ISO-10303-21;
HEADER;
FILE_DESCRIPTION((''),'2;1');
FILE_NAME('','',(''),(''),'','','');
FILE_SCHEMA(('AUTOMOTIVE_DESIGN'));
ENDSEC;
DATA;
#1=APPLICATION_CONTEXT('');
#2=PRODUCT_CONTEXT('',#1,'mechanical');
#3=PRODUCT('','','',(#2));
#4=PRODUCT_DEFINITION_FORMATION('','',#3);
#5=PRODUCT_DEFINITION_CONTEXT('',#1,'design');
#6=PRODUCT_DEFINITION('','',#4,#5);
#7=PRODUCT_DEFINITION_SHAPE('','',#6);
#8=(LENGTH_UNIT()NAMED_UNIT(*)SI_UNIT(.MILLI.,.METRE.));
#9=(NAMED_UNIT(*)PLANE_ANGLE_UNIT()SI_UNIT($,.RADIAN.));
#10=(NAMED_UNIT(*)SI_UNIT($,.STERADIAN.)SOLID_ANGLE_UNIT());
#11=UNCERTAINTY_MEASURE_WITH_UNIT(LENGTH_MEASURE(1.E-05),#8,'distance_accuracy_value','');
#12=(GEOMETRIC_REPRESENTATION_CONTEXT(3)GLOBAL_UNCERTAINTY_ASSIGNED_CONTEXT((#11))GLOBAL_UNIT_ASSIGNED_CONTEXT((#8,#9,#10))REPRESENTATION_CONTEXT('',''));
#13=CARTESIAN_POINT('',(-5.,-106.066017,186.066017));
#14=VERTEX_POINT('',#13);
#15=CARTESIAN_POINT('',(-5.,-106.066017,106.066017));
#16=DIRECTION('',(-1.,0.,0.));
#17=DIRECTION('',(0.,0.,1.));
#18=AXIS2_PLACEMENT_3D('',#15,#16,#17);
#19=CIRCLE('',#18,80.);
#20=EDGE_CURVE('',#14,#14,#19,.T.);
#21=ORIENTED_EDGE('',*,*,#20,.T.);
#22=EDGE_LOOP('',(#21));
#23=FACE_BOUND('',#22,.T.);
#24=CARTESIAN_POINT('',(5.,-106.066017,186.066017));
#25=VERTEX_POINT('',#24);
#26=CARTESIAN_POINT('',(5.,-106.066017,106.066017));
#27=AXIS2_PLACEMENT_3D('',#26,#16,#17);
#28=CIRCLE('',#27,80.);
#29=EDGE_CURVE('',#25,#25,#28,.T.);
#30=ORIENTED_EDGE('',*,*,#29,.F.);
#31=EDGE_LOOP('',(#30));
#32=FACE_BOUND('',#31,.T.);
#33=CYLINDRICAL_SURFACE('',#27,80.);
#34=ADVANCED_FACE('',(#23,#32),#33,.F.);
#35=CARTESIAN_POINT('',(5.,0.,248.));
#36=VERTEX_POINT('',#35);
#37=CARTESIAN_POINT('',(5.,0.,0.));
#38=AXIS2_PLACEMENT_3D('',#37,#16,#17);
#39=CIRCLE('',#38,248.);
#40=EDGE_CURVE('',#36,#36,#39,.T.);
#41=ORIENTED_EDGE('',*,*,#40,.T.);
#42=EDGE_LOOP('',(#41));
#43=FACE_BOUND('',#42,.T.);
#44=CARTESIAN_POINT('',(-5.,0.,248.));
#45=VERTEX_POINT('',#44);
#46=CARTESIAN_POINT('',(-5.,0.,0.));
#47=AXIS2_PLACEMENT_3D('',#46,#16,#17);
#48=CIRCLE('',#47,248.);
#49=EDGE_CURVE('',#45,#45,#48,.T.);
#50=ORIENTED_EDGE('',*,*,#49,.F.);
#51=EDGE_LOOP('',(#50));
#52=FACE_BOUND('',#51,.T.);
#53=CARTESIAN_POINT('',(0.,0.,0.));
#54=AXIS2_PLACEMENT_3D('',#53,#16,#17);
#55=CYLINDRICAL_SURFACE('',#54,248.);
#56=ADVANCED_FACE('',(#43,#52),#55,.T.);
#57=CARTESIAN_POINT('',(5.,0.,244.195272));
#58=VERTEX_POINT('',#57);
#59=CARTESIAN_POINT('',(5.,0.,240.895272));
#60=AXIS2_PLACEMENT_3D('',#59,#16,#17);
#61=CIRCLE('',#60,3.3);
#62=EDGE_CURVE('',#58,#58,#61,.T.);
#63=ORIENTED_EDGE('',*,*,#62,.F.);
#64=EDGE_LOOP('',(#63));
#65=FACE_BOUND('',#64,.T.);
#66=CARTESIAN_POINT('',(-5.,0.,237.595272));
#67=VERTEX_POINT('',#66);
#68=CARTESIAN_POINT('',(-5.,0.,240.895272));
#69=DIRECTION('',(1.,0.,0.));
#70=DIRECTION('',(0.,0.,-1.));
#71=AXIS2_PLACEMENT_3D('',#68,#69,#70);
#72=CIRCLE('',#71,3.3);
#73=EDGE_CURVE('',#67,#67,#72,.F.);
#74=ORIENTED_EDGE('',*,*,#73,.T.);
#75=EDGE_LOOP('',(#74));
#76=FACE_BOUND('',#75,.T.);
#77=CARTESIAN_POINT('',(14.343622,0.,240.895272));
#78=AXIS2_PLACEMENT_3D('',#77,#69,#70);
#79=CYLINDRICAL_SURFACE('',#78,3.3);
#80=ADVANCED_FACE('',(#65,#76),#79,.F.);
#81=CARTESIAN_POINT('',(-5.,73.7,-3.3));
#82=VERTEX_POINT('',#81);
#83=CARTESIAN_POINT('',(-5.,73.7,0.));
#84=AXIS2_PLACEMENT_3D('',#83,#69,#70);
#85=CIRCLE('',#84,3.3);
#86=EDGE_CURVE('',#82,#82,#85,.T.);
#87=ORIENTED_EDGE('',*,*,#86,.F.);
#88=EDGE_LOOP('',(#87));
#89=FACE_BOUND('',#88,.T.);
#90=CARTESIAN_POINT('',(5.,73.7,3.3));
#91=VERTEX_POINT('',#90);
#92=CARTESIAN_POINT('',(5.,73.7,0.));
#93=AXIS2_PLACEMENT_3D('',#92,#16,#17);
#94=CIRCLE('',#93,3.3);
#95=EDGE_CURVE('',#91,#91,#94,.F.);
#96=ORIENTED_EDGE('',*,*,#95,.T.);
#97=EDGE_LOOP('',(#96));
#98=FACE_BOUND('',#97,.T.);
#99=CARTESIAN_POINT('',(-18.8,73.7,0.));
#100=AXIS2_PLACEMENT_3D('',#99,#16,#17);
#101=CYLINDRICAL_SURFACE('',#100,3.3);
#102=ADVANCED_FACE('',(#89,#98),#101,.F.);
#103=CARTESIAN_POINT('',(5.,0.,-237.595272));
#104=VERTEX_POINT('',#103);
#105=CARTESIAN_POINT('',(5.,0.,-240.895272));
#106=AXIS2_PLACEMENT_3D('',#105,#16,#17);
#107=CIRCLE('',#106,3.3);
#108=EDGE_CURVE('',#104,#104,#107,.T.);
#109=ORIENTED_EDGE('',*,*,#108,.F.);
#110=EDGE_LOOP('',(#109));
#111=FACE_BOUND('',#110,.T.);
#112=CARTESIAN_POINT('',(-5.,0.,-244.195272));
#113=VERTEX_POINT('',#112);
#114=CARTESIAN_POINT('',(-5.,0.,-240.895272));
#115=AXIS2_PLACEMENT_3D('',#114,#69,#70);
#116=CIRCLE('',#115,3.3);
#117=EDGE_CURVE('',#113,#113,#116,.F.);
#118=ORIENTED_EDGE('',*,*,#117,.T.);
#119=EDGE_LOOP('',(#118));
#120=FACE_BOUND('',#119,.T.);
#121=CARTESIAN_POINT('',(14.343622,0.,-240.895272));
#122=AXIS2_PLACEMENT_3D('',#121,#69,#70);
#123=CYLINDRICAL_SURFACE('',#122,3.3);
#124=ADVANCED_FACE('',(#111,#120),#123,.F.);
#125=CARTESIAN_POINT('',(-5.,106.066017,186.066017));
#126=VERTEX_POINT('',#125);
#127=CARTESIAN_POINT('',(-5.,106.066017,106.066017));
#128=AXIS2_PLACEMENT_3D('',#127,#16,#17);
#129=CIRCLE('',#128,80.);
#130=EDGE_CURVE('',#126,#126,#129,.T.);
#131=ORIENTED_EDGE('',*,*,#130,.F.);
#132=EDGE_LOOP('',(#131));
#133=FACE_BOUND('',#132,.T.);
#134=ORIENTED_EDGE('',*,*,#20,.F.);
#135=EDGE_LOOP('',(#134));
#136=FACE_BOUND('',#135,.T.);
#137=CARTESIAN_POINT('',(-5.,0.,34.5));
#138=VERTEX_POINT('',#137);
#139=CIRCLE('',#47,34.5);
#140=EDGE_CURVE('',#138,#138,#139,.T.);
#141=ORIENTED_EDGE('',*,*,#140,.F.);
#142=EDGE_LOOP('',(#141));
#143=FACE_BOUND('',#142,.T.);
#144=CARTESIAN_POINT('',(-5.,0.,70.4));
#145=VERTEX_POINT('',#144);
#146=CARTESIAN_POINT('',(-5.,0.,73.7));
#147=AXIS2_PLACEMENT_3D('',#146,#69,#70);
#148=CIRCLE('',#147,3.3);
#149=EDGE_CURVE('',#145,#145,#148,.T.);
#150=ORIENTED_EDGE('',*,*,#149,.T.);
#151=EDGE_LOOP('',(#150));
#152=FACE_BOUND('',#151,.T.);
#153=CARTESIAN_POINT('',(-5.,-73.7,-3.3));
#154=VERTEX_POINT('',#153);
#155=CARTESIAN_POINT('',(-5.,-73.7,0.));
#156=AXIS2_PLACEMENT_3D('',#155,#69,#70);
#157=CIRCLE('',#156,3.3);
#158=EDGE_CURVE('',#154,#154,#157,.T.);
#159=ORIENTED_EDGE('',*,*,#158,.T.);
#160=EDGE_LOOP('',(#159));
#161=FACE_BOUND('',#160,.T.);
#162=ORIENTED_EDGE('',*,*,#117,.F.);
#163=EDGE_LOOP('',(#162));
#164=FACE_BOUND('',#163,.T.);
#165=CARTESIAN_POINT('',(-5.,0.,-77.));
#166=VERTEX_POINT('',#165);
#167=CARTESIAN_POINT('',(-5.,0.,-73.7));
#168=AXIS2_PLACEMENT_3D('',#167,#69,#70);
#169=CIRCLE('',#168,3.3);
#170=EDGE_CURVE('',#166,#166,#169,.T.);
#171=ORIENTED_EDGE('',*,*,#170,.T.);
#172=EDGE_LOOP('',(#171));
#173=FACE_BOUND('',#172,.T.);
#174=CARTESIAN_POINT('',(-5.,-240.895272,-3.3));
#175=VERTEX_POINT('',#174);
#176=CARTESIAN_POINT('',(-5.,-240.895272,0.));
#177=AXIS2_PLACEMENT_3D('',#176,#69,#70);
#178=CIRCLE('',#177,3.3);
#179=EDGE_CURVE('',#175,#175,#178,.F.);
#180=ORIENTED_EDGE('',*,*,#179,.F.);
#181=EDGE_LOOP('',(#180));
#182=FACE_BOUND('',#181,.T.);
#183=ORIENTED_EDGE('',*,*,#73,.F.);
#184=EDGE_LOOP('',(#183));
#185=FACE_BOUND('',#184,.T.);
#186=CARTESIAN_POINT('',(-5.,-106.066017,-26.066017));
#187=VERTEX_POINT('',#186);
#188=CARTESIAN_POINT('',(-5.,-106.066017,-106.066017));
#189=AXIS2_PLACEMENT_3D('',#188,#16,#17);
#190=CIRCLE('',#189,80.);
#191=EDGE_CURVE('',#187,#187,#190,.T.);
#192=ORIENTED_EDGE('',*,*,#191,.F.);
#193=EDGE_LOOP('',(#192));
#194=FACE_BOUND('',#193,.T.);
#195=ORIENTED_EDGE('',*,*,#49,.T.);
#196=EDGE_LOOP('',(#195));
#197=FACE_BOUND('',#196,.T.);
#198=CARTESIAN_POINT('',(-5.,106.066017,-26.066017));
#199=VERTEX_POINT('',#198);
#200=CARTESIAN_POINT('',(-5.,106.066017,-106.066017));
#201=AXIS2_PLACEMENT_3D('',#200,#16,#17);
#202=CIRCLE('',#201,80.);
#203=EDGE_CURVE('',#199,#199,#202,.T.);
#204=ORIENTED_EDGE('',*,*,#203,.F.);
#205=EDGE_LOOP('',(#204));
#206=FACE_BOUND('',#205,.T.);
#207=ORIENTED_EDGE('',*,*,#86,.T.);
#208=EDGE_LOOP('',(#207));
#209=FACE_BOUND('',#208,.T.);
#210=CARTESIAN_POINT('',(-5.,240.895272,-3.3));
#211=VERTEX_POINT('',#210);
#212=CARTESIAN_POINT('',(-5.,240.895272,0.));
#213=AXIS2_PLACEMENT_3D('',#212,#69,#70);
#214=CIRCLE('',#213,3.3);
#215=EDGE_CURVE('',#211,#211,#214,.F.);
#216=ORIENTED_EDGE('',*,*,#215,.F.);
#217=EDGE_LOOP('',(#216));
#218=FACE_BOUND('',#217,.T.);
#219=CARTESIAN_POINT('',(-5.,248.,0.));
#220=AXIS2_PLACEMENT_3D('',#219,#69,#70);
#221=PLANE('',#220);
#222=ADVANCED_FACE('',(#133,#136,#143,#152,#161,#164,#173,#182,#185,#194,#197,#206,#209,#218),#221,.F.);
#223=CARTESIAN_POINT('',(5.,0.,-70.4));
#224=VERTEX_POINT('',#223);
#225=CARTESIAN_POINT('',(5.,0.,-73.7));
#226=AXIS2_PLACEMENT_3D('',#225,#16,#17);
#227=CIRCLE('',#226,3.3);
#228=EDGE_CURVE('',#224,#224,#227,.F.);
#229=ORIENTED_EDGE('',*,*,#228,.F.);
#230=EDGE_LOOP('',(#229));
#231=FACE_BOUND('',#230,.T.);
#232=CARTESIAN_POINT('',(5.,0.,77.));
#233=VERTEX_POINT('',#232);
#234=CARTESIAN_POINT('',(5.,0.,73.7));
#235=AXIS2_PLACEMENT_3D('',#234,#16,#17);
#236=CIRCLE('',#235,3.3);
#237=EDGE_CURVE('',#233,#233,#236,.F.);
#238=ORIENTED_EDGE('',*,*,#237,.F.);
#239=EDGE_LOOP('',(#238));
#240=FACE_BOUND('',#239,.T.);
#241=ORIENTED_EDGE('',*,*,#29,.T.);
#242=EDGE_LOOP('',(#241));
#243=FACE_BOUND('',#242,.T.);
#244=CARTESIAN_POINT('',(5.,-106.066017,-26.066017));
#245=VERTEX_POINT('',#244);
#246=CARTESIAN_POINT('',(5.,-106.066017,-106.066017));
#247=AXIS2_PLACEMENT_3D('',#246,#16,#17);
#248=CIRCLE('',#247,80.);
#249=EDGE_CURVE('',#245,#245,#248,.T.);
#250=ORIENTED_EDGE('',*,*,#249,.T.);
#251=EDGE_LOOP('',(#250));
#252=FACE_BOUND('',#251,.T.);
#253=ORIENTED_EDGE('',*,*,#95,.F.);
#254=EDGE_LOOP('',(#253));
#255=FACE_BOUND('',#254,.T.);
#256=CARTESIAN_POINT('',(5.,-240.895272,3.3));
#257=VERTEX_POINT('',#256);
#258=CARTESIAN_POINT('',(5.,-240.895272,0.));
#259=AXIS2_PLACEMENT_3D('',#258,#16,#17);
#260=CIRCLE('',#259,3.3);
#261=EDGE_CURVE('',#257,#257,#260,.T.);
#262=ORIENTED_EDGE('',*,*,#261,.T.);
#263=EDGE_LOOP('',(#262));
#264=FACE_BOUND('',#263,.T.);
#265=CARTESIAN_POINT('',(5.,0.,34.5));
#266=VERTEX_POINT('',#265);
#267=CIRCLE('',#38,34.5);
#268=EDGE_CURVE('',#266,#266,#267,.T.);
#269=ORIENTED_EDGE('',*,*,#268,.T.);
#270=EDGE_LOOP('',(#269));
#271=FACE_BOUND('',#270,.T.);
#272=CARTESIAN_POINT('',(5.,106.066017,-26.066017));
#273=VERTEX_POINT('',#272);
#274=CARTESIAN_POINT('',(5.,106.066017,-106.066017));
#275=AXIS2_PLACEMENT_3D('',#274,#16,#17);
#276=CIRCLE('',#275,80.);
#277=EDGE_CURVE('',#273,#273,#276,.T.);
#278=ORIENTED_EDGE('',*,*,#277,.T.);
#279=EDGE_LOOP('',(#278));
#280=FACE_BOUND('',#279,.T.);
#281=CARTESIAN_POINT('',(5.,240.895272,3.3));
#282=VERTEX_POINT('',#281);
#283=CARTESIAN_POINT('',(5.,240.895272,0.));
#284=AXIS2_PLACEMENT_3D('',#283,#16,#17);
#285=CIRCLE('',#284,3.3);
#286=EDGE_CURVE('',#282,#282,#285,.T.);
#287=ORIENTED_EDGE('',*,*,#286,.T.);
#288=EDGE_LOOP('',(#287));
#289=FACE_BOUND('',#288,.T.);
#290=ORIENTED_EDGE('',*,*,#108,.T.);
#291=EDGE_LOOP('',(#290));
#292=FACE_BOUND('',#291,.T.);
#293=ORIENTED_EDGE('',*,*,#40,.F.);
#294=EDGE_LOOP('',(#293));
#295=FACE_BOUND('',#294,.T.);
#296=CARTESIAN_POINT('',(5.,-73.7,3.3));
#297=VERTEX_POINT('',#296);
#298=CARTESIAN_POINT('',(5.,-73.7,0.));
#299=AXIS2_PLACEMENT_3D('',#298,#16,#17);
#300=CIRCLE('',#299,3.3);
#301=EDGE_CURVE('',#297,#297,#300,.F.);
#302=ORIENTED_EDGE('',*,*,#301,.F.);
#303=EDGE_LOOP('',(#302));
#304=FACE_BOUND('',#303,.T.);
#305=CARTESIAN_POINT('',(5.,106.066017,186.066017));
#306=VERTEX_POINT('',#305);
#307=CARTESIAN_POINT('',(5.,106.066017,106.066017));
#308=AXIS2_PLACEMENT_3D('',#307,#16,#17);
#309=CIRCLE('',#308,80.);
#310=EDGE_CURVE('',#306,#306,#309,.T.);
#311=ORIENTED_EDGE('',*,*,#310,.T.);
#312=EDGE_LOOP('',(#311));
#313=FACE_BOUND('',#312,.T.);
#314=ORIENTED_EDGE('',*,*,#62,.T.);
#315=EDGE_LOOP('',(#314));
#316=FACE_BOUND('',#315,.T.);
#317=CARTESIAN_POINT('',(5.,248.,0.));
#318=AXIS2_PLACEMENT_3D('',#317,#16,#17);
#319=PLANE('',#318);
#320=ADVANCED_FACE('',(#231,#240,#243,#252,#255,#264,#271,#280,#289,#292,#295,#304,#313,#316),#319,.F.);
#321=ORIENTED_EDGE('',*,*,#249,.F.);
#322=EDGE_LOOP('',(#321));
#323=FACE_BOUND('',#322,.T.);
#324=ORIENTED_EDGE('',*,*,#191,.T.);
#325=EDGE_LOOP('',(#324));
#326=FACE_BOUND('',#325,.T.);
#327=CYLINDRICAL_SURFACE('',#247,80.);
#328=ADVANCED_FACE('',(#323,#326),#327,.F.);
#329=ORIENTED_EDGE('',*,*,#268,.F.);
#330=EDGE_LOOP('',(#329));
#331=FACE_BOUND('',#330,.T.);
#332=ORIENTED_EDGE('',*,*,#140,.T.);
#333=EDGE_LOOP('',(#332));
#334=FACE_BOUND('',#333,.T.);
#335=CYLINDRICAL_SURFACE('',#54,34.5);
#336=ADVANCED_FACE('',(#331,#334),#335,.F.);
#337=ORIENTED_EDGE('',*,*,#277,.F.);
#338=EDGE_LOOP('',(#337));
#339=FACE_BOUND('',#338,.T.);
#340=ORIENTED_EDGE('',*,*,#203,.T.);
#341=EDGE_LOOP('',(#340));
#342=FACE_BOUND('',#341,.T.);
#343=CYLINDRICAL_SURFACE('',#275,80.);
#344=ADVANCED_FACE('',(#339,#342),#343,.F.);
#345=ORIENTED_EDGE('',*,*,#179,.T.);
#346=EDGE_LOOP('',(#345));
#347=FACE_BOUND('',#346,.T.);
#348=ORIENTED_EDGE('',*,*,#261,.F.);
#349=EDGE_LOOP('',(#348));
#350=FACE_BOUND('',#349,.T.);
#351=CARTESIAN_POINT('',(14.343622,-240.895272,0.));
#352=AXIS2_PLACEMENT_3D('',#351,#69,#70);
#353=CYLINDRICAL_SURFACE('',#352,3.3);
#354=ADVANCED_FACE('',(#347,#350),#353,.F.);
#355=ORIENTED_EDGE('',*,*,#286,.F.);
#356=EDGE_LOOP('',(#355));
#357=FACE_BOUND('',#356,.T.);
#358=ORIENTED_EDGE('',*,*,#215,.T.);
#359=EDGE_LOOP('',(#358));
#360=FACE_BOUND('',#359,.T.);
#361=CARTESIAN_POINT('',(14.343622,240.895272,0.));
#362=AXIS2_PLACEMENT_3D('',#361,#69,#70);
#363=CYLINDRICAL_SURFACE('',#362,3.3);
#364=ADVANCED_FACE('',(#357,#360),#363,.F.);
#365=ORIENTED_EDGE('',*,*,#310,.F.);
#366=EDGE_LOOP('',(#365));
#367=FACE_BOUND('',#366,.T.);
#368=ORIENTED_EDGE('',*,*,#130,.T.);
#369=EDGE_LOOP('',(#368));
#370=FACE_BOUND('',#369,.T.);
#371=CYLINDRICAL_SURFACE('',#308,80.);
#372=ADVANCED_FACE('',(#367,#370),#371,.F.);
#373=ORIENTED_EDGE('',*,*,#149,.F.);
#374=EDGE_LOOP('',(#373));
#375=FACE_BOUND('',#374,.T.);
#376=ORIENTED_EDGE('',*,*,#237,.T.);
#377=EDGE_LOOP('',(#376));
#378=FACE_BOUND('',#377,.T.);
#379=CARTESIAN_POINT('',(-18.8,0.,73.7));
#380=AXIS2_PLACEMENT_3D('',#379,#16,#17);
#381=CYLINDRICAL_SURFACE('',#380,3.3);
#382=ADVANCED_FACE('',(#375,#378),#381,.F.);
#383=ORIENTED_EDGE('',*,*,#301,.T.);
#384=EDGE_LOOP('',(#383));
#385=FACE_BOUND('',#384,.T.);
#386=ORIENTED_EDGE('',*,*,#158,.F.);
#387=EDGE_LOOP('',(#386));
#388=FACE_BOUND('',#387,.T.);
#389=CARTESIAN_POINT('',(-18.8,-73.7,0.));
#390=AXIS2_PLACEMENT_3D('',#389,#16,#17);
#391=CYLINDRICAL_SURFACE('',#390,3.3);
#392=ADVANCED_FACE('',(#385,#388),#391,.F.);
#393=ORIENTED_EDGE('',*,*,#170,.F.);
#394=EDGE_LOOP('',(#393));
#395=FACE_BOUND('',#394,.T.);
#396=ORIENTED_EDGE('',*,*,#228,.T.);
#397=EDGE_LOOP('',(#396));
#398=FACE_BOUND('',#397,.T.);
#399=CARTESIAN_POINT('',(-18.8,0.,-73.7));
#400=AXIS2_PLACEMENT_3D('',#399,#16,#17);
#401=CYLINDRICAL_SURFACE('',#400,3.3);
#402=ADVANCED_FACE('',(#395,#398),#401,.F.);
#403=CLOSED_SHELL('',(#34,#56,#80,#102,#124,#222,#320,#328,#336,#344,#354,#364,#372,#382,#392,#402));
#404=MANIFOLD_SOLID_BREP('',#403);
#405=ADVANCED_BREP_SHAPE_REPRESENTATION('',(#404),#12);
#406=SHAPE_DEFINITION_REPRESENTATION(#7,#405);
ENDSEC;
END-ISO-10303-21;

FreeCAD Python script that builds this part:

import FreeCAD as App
import Part
import Sketcher

V = App.Vector
Q = App.Units.Quantity


def add_polygon(sketch, points):
    """Adds a closed chain of lines whose ends are joined by coincident constraints."""
    first, n = sketch.GeometryCount, len(points)
    for a, b in zip(points, points[1:] + points[:1]):
        sketch.addGeometry(Part.LineSegment(App.Vector(*a, 0), App.Vector(*b, 0)), False)
    for i in range(n):
        sketch.addConstraint(Sketcher.Constraint("Coincident", first + i, 2, first + (i + 1) % n, 1))

doc = App.newDocument("Part")
params = doc.addObject("Spreadsheet::Sheet", "Params")
for row, (alias, value) in enumerate([
    ("sketch1_width", "10 mm"),
    ("sketch1_height", "213.5 mm"),
    ("revolution_angle", "360 deg"),
    ("sketch2_diameter", "6.6 mm"),
    ("hole_diameter", "6.6 mm"),
    ("sketch3_diameter", "160 mm"),
    ("sketch4_diameter", "6.6 mm"),
    ("hole2_diameter", "6.6 mm"),
], start=1):
    params.set(f"A{row}", alias)
    params.set(f"B{row}", "=" + value)
    params.setAlias(f"B{row}", alias)

body = doc.addObject("PartDesign::Body", "Body")

# Sketch on XY plane
sketch1 = body.newObject("Sketcher::SketchObject", "Sketch")
sketch1.AttachmentSupport = (doc.getObject("XY_Plane"), [""])
sketch1.MapMode = "FlatFace"
add_polygon(sketch1, [(-5, 248), (-5, 34.5), (5, 34.5), (5, 248)])  # lines 0-3
sketch1.addConstraint(Sketcher.Constraint("Vertical", 0))
sketch1.addConstraint(Sketcher.Constraint("Horizontal", 1))
sketch1.addConstraint(Sketcher.Constraint("Vertical", 2))
sketch1.addConstraint(Sketcher.Constraint("Horizontal", 3))
sketch1.addConstraint(Sketcher.Constraint("DistanceX", 1, 1, 1, 2, Q("10 mm")))
sketch1.addConstraint(Sketcher.Constraint("DistanceY", 0, 2, 0, 1, Q("213.5 mm")))
sketch1.addConstraint(Sketcher.Constraint("DistanceX", 0, 2, -1, 1, Q("5 mm")))
sketch1.addConstraint(Sketcher.Constraint("DistanceY", -1, 1, 2, 2, Q("248 mm")))
sketch1.setExpression("Constraints[8]", "Params.sketch1_width")
sketch1.setExpression("Constraints[9]", "Params.sketch1_height")
revolution = body.newObject("PartDesign::Revolution", "Revolution")
revolution.Profile = sketch1
revolution.ReferenceAxis = (sketch1, ["H_Axis"])
revolution.setExpression("Angle", "Params.revolution_angle")

# Sketch on YZ plane
sketch2 = body.newObject("Sketcher::SketchObject", "Sketch001")
sketch2.AttachmentSupport = (doc.getObject("YZ_Plane"), [""])
sketch2.MapMode = "FlatFace"
sketch2.AttachmentOffset = App.Placement(V(0, 0, -18.8), App.Rotation())
sketch2.addGeometry(Part.Circle(V(73.7, 0, 0), V(0, 0, 1), 3.3), False)
sketch2.addGeometry(Part.Circle(V(0, 73.7, 0), V(0, 0, 1), 3.3), False)
sketch2.addGeometry(Part.Circle(V(-73.7, 0, 0), V(0, 0, 1), 3.3), False)
sketch2.addGeometry(Part.Circle(V(0, -73.7, 0), V(0, 0, 1), 3.3), False)
sketch2.addGeometry(Part.Circle(V(0, 0, 0), V(0, 0, 1), 3.3), False)
sketch2.addConstraint(Sketcher.Constraint("Coincident", 4, 3, -1, 1))
sketch2.addConstraint(Sketcher.Constraint("Equal", 0, 1))
sketch2.addConstraint(Sketcher.Constraint("Equal", 1, 2))
sketch2.addConstraint(Sketcher.Constraint("Equal", 2, 3))
sketch2.addConstraint(Sketcher.Constraint("Equal", 3, 4))
sketch2.addConstraint(Sketcher.Constraint("Symmetric", 0, 3, 2, 3, -1, 1))
sketch2.addConstraint(Sketcher.Constraint("Symmetric", 1, 3, 3, 3, -1, 1))
sketch2.addConstraint(Sketcher.Constraint("PointOnObject", 0, 3, -1))
sketch2.addConstraint(Sketcher.Constraint("PointOnObject", 1, 3, -2))
sketch2.addConstraint(Sketcher.Constraint("Diameter", 0, Q("6.6 mm")))
sketch2.addConstraint(Sketcher.Constraint("DistanceX", -1, 1, 0, 3, Q("73.7 mm")))
sketch2.addConstraint(Sketcher.Constraint("DistanceY", -1, 1, 1, 3, Q("73.7 mm")))
sketch2.setExpression("Constraints[9]", "Params.sketch2_diameter")
doc.recompute()
hole = body.newObject("PartDesign::Hole", "Hole")
hole.Profile = sketch2
hole.ThreadType = "None"
hole.setExpression("Diameter", "Params.hole_diameter")
hole.DepthType = "ThroughAll"
hole.Reversed = True

# Sketch on YZ plane
sketch3 = body.newObject("Sketcher::SketchObject", "Sketch002")
sketch3.AttachmentSupport = (doc.getObject("YZ_Plane"), [""])
sketch3.MapMode = "FlatFace"
sketch3.AttachmentOffset = App.Placement(V(0, 0, -5), App.Rotation())
sketch3.addGeometry(Part.Circle(V(106.066017, 106.066017, 0), V(0, 0, 1), 80), False)
sketch3.addGeometry(Part.Circle(V(-106.066017, 106.066017, 0), V(0, 0, 1), 80), False)
sketch3.addGeometry(Part.Circle(V(-106.066017, -106.066017, 0), V(0, 0, 1), 80), False)
sketch3.addGeometry(Part.Circle(V(106.066017, -106.066017, 0), V(0, 0, 1), 80), False)
sketch3.addConstraint(Sketcher.Constraint("Equal", 0, 1))
sketch3.addConstraint(Sketcher.Constraint("Equal", 1, 2))
sketch3.addConstraint(Sketcher.Constraint("Equal", 2, 3))
sketch3.addConstraint(Sketcher.Constraint("Symmetric", 0, 3, 2, 3, -1, 1))
sketch3.addConstraint(Sketcher.Constraint("Symmetric", 1, 3, 3, 3, -1, 1))
sketch3.addConstraint(Sketcher.Constraint("Symmetric", 0, 3, 1, 3, -2))
sketch3.addConstraint(Sketcher.Constraint("Diameter", 0, Q("160 mm")))
sketch3.addConstraint(Sketcher.Constraint("DistanceX", -1, 1, 0, 3, Q("106.066017 mm")))
sketch3.addConstraint(Sketcher.Constraint("DistanceY", -1, 1, 0, 3, Q("106.066017 mm")))
sketch3.setExpression("Constraints[6]", "Params.sketch3_diameter")
pocket1 = body.newObject("PartDesign::Pocket", "Pocket")
pocket1.Profile = sketch3
pocket1.Type = "ThroughAll"
pocket1.Reversed = True

# Sketch on YZ plane
sketch4 = body.newObject("Sketcher::SketchObject", "Sketch003")
sketch4.AttachmentSupport = (doc.getObject("YZ_Plane"), [""])
sketch4.MapMode = "FlatFace"
sketch4.AttachmentOffset = App.Placement(V(0, 0, 14.343622), App.Rotation())
sketch4.addGeometry(Part.Circle(V(240.895272, 0, 0), V(0, 0, 1), 3.3), False)
sketch4.addGeometry(Part.Circle(V(0, -240.895272, 0), V(0, 0, 1), 3.3), False)
sketch4.addGeometry(Part.Circle(V(-240.895272, 0, 0), V(0, 0, 1), 3.3), False)
sketch4.addGeometry(Part.Circle(V(0, 240.895272, 0), V(0, 0, 1), 3.3), False)
sketch4.addGeometry(Part.Circle(V(0, 0, 0), V(0, 0, 1), 3.3), False)
sketch4.addConstraint(Sketcher.Constraint("Coincident", 4, 3, -1, 1))
sketch4.addConstraint(Sketcher.Constraint("Equal", 0, 1))
sketch4.addConstraint(Sketcher.Constraint("Equal", 1, 2))
sketch4.addConstraint(Sketcher.Constraint("Equal", 2, 3))
sketch4.addConstraint(Sketcher.Constraint("Equal", 3, 4))
sketch4.addConstraint(Sketcher.Constraint("Symmetric", 0, 3, 2, 3, -1, 1))
sketch4.addConstraint(Sketcher.Constraint("Symmetric", 1, 3, 3, 3, -1, 1))
sketch4.addConstraint(Sketcher.Constraint("PointOnObject", 0, 3, -1))
sketch4.addConstraint(Sketcher.Constraint("PointOnObject", 1, 3, -2))
sketch4.addConstraint(Sketcher.Constraint("Diameter", 0, Q("6.6 mm")))
sketch4.addConstraint(Sketcher.Constraint("DistanceX", -1, 1, 0, 3, Q("240.895272 mm")))
sketch4.addConstraint(Sketcher.Constraint("DistanceY", 1, 3, -1, 1, Q("240.895272 mm")))
sketch4.setExpression("Constraints[9]", "Params.sketch4_diameter")
doc.recompute()
hole2 = body.newObject("PartDesign::Hole", "Hole001")
hole2.Profile = sketch4
hole2.ThreadType = "None"
hole2.setExpression("Diameter", "Params.hole2_diameter")
hole2.DepthType = "ThroughAll"

doc.recompute()
